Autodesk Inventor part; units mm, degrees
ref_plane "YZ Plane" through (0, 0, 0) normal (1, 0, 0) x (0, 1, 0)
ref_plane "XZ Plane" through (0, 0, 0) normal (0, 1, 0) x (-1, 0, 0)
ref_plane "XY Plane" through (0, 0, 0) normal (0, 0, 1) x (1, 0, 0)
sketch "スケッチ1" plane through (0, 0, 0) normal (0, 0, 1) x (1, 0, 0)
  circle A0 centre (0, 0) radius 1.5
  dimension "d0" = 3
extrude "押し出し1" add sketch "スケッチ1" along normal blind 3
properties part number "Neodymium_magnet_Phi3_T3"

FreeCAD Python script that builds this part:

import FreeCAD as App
import Part
import Sketcher
from FreeCAD import Vector
Q = App.Units.Quantity

doc = App.newDocument("Part")
params = doc.addObject("Spreadsheet::Sheet", "Params")
for row, (alias, value) in enumerate([
    ("sketch1_diameter", "3 mm"),
    ("pad1_length", "3 mm"),
], start=1):
    params.set(f"A{row}", alias)
    params.set(f"B{row}", "=" + value)
    params.setAlias(f"B{row}", alias)

body = doc.addObject("PartDesign::Body", "Body")

sketch1 = doc.addObject("Sketcher::SketchObject", "Sketch")
body.addObject(sketch1)
sketch1.AttachmentSupport = (doc.XY_Plane, [""])
sketch1.MapMode = "FlatFace"
sketch1.addGeometry(Part.Circle(Vector(0, 0, 0), Vector(0, 0, 1), 1.5), False)
sketch1.addConstraint([
    Sketcher.Constraint("Coincident", 0, 3, -1, 1),
    Sketcher.Constraint("Diameter", 0, Q("3 mm")),
])
sketch1.setExpression("Constraints[1]", "Params.sketch1_diameter")
pad1 = doc.addObject("PartDesign::Pad", "Pad")
body.addObject(pad1)
pad1.Profile = sketch1
pad1.setExpression("Length", "Params.pad1_length")

doc.recompute()
